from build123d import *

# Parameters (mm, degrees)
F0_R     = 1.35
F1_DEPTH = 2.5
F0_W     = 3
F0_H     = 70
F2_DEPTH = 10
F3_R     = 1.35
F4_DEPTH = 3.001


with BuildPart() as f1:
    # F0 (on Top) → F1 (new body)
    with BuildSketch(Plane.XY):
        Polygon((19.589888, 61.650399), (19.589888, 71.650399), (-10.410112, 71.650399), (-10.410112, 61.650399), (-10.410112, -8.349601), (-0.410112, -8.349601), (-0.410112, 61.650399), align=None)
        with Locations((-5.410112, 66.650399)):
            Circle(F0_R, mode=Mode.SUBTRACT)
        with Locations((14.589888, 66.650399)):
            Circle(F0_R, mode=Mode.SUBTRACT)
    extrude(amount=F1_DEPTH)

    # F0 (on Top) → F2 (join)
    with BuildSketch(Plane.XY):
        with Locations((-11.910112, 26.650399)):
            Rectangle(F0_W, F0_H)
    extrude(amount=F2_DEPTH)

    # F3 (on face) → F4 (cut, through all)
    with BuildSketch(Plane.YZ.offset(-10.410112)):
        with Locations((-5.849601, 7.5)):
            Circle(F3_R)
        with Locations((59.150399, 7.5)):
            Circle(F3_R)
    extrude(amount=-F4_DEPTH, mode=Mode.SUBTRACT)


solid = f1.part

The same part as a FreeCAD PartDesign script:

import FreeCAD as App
import Part
import Sketcher
Q = App.Units.Quantity


def add_polygon(sketch, points):
    """Adds a closed chain of lines whose ends are joined by coincident constraints."""
    first, n = sketch.GeometryCount, len(points)
    for a, b in zip(points, points[1:] + points[:1]):
        sketch.addGeometry(Part.LineSegment(App.Vector(*a, 0), App.Vector(*b, 0)), False)
    for i in range(n):
        sketch.addConstraint(Sketcher.Constraint("Coincident", first + i, 2, first + (i + 1) % n, 1))

doc = App.newDocument("Part")
body = doc.addObject("PartDesign::Body", "Body")

sketch1 = doc.addObject("Sketcher::SketchObject", "Sketch")
body.addObject(sketch1)
sketch1.AttachmentSupport = (doc.XY_Plane, [""])
sketch1.MapMode = "FlatFace"
add_polygon(sketch1, [(19.6, 61.7), (19.6, 71.7), (-10.4, 71.7), (-10.4, -8.3), (-0.4, -8.3), (-0.4, 61.7)])
sketch1.addGeometry(Part.Circle(App.Vector(-5.4, 66.7, 0), App.Vector(0, 0, 1), 1.4), False)
sketch1.addGeometry(Part.Circle(App.Vector(14.6, 66.7, 0), App.Vector(0, 0, 1), 1.4), False)
sketch1.addConstraint(Sketcher.Constraint("Vertical", 0))
sketch1.addConstraint(Sketcher.Constraint("Horizontal", 1))
sketch1.addConstraint(Sketcher.Constraint("Vertical", 2))
sketch1.addConstraint(Sketcher.Constraint("Horizontal", 3))
sketch1.addConstraint(Sketcher.Constraint("Vertical", 4))
sketch1.addConstraint(Sketcher.Constraint("Horizontal", 5))
sketch1.addConstraint(Sketcher.Constraint("Equal", 6, 7))
sketch1.addConstraint(Sketcher.Constraint("Horizontal", 6, 3, 7, 3))
sketch1.addConstraint(Sketcher.Constraint("Equal", 3, 0))
sketch1.addConstraint(Sketcher.Constraint("Diameter", 6, Q("2.7 mm")))
sketch1.addConstraint(Sketcher.Constraint("DistanceX", 1, 2, 1, 1, Q("30 mm")))
sketch1.addConstraint(Sketcher.Constraint("DistanceX", 3, 1, 3, 2, Q("10 mm")))
sketch1.addConstraint(Sketcher.Constraint("DistanceY", 2, 2, 2, 1, Q("80 mm")))
sketch1.addConstraint(Sketcher.Constraint("DistanceX", 6, 3, 7, 3, Q("20 mm")))
sketch1.addConstraint(Sketcher.Constraint("DistanceX", 7, 3, 0, 2, Q("5 mm")))
sketch1.addConstraint(Sketcher.Constraint("DistanceY", 7, 3, 0, 2, Q("5 mm")))
sketch1.addConstraint(Sketcher.Constraint("DistanceY", -1, 1, 6, 3, Q("66.650399 mm")))
sketch1.addConstraint(Sketcher.Constraint("DistanceX", 6, 3, -1, 1, Q("5.410112 mm")))
pad1 = doc.addObject("PartDesign::Pad", "Pad")
body.addObject(pad1)
pad1.Profile = sketch1
pad1.Length = 2.5

sketch2 = doc.addObject("Sketcher::SketchObject", "Sketch001")
body.addObject(sketch2)
sketch2.AttachmentSupport = (doc.XY_Plane, [""])
sketch2.MapMode = "FlatFace"
add_polygon(sketch2, [(-13.4, 61.7), (-13.4, -8.3), (-10.4, -8.3), (-10.4, 61.7)])
sketch2.addConstraint(Sketcher.Constraint("Vertical", 0))
sketch2.addConstraint(Sketcher.Constraint("Horizontal", 1))
sketch2.addConstraint(Sketcher.Constraint("Vertical", 2))
sketch2.addConstraint(Sketcher.Constraint("Horizontal", 3))
sketch2.addConstraint(Sketcher.Constraint("DistanceX", 1, 1, 1, 2, Q("3 mm")))
sketch2.addConstraint(Sketcher.Constraint("DistanceY", 0, 2, 0, 1, Q("70 mm")))
sketch2.addConstraint(Sketcher.Constraint("DistanceY", 0, 2, -1, 1, Q("8.349601 mm")))
sketch2.addConstraint(Sketcher.Constraint("DistanceX", 0, 2, -1, 1, Q("13.410112 mm")))
pad2 = doc.addObject("PartDesign::Pad", "Pad001")
body.addObject(pad2)
pad2.Profile = sketch2
pad2.Length = 10

sketch3 = doc.addObject("Sketcher::SketchObject", "Sketch002")
body.addObject(sketch3)
sketch3.AttachmentSupport = (doc.YZ_Plane, [""])
sketch3.MapMode = "FlatFace"
sketch3.AttachmentOffset = App.Placement(App.Vector(0, 0, -10.410112), App.Rotation())
sketch3.addGeometry(Part.Circle(App.Vector(-5.8, 7.5, 0), App.Vector(0, 0, 1), 1.4), False)
sketch3.addGeometry(Part.Circle(App.Vector(59.2, 7.5, 0), App.Vector(0, 0, 1), 1.4), False)
sketch3.addConstraint(Sketcher.Constraint("Equal", 0, 1))
sketch3.addConstraint(Sketcher.Constraint("Horizontal", 0, 3, 1, 3))
sketch3.addConstraint(Sketcher.Constraint("Diameter", 0, Q("2.7 mm")))
sketch3.addConstraint(Sketcher.Constraint("DistanceX", 0, 3, 1, 3, Q("65 mm")))
sketch3.addConstraint(Sketcher.Constraint("DistanceY", -1, 1, 0, 3, Q("7.5 mm")))
sketch3.addConstraint(Sketcher.Constraint("DistanceX", 0, 3, -1, 1, Q("5.849601 mm")))
pocket1 = doc.addObject("PartDesign::Pocket", "Pocket")
body.addObject(pocket1)
pocket1.Profile = sketch3
pocket1.Type = "ThroughAll"

doc.recompute()
